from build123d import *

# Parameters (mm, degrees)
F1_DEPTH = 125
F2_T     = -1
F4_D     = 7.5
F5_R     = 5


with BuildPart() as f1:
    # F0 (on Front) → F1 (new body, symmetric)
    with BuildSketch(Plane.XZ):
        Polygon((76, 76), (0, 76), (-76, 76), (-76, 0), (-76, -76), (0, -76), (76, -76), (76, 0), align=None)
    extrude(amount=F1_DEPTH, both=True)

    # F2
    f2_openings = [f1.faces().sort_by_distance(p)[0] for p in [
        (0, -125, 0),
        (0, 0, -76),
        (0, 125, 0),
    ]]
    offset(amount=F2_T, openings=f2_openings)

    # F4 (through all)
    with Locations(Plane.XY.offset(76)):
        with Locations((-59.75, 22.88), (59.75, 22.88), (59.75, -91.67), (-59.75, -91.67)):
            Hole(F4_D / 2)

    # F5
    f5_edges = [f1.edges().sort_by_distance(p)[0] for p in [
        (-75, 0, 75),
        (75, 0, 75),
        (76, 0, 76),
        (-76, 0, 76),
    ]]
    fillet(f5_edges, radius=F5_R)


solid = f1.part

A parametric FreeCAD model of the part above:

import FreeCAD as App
import Part
import Sketcher

V = App.Vector


def edges_at(feature, points):
    """Names of the edges that pass closest to the given points."""
    edges = feature.Shape.Edges
    near = lambda p: min(range(len(edges)), key=lambda i: edges[i].distToShape(Part.Vertex(*p))[0])
    return sorted({f"Edge{near(p) + 1}" for p in points})


def faces_at(feature, points):
    """Names of the faces that lie closest to the given points."""
    faces = feature.Shape.Faces
    near = lambda p: min(range(len(faces)), key=lambda i: faces[i].distToShape(Part.Vertex(*p))[0])
    return sorted({f"Face{near(p) + 1}" for p in points})

doc = App.newDocument("Part")
body = doc.addObject("PartDesign::Body", "Body")

sketch1 = doc.addObject("Sketcher::SketchObject", "Sketch")
body.addObject(sketch1)
sketch1.AttachmentSupport = (doc.XZ_Plane, [""])
sketch1.MapMode = "FlatFace"
sketch1.addGeometry(Part.LineSegment(V(76, 76, 0), V(-76, 76, 0)), False)
sketch1.addGeometry(Part.LineSegment(V(-76, 76, 0), V(-76, -76, 0)), False)
sketch1.addGeometry(Part.LineSegment(V(-76, -76, 0), V(76, -76, 0)), False)
sketch1.addGeometry(Part.LineSegment(V(76, -76, 0), V(76, 76, 0)), False)
sketch1.addConstraint(Sketcher.Constraint("Coincident", 0, 2, 1, 1))
sketch1.addConstraint(Sketcher.Constraint("Coincident", 1, 2, 2, 1))
sketch1.addConstraint(Sketcher.Constraint("Coincident", 2, 2, 3, 1))
sketch1.addConstraint(Sketcher.Constraint("Coincident", 3, 2, 0, 1))
sketch1.addConstraint(Sketcher.Constraint("Horizontal", 0))
sketch1.addConstraint(Sketcher.Constraint("Vertical", 1))
sketch1.addConstraint(Sketcher.Constraint("Horizontal", 2))
sketch1.addConstraint(Sketcher.Constraint("Vertical", 3))
sketch1.addConstraint(Sketcher.Constraint("Symmetric", 0, 2, 2, 2, -1, 1))
sketch1.addConstraint(Sketcher.Constraint("Equal", 2, 1))
sketch1.addConstraint(Sketcher.Constraint("DistanceX", 0, 2, 0, 1, 152.0))
pad1 = doc.addObject("PartDesign::Pad", "Pad")
body.addObject(pad1)
pad1.Profile = sketch1
pad1.Length = 250
pad1.Midplane = True
doc.recompute()

thickness = doc.addObject("PartDesign::Thickness", "Thickness")
body.addObject(thickness)
thickness.Base = (pad1, faces_at(pad1, [(0, -125, 0), (0, 0, -76), (0, 125, 0)]))
thickness.Value = 1
thickness.Reversed = True
thickness.Join = "Arc"

sketch2 = doc.addObject("Sketcher::SketchObject", "Sketch001")
body.addObject(sketch2)
sketch2.AttachmentSupport = (doc.XY_Plane, [""])
sketch2.MapMode = "FlatFace"
sketch2.AttachmentOffset = App.Placement(V(0, 0, 76), App.Rotation())
sketch2.addGeometry(Part.Circle(V(-59.8, 22.9, 0), V(0, 0, 1), 3.8), False)
sketch2.addGeometry(Part.Circle(V(59.8, 22.9, 0), V(0, 0, 1), 3.8), False)
sketch2.addGeometry(Part.Circle(V(59.8, -91.7, 0), V(0, 0, 1), 3.8), False)
sketch2.addGeometry(Part.Circle(V(-59.8, -91.7, 0), V(0, 0, 1), 3.8), False)
sketch2.addConstraint(Sketcher.Constraint("Equal", 0, 1))
sketch2.addConstraint(Sketcher.Constraint("Equal", 1, 2))
sketch2.addConstraint(Sketcher.Constraint("Equal", 2, 3))
sketch2.addConstraint(Sketcher.Constraint("Symmetric", 0, 3, 1, 3, -2))
sketch2.addConstraint(Sketcher.Constraint("Symmetric", 2, 3, 3, 3, -2))
sketch2.addConstraint(Sketcher.Constraint("Vertical", 1, 3, 2, 3))
sketch2.addConstraint(Sketcher.Constraint("Diameter", 0, 7.5))
sketch2.addConstraint(Sketcher.Constraint("DistanceX", 0, 3, 1, 3, 119.5))
sketch2.addConstraint(Sketcher.Constraint("DistanceY", -1, 1, 0, 3, 22.88))
sketch2.addConstraint(Sketcher.Constraint("DistanceY", 2, 3, -1, 1, 91.67))
doc.recompute()
hole = doc.addObject("PartDesign::Hole", "Hole")
body.addObject(hole)
hole.Profile = sketch2
hole.ThreadType = "None"
hole.Diameter = 7.5
hole.DepthType = "ThroughAll"
doc.recompute()

fillet = doc.addObject("PartDesign::Fillet", "Fillet")
body.addObject(fillet)
fillet.Base = (hole, edges_at(hole, [
    (-75, 0, 75),
    (75, 0, 75),
    (76, 0, 76),
    (-76, 0, 76),
]))
fillet.Radius = 5

doc.recompute()
